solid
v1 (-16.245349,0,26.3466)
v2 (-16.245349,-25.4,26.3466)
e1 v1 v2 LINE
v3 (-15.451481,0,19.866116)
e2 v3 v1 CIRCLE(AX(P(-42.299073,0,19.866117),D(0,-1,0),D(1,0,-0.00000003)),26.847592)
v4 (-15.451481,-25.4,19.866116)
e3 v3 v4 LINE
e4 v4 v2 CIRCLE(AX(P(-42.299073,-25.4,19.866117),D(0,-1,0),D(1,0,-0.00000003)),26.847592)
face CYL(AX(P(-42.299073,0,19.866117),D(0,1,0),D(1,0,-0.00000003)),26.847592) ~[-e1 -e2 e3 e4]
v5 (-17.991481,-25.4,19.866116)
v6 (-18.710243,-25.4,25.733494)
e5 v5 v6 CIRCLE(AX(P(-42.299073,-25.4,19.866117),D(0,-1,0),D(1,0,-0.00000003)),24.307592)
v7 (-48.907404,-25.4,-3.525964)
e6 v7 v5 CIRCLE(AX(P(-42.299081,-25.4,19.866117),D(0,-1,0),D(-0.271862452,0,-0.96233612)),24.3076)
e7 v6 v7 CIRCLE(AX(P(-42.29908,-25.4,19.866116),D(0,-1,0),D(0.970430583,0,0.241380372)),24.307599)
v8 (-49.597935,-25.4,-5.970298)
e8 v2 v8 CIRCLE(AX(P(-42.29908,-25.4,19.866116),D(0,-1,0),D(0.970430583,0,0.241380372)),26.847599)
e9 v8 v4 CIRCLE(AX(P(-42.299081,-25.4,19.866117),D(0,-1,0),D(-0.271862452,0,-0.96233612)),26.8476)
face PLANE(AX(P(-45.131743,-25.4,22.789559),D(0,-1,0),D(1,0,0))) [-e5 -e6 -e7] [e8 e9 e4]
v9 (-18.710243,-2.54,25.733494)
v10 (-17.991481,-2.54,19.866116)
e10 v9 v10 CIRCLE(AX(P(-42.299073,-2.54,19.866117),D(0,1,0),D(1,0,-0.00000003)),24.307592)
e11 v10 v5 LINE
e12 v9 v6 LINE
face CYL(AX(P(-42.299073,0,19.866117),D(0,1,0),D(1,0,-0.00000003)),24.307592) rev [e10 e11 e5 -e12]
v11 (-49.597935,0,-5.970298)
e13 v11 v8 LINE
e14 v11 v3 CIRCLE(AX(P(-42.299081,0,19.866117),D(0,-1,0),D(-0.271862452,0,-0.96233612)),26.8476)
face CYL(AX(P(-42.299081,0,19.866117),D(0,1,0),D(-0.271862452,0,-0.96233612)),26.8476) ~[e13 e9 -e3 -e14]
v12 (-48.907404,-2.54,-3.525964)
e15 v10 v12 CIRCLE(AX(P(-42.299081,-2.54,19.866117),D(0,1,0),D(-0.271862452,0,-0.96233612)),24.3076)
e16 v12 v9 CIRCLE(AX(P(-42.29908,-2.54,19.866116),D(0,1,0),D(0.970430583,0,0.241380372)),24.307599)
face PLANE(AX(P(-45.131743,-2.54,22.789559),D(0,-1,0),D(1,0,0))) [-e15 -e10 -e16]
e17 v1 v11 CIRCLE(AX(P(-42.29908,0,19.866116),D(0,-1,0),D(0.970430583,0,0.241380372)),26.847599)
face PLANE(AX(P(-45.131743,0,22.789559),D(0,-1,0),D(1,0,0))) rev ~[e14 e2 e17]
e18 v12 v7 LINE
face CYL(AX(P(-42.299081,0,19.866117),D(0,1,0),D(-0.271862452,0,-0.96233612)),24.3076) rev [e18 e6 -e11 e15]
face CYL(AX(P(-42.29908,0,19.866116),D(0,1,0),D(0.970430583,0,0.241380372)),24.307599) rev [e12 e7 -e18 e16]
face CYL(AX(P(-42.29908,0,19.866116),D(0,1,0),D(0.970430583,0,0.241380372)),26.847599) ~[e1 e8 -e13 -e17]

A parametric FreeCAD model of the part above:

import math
import FreeCAD as App
import Part
import Sketcher
from FreeCAD import Vector
Q = App.Units.Quantity


def faces_at(feature, points):
    """Names of the faces that lie closest to the given points."""
    faces = feature.Shape.Faces
    near = lambda p: min(range(len(faces)), key=lambda i: faces[i].distToShape(Part.Vertex(*p))[0])
    return sorted({f"Face{near(p) + 1}" for p in points})

doc = App.newDocument("Part")
body = doc.addObject("PartDesign::Body", "Body")

# Sketch on XZ plane
sketch1 = body.newObject("Sketcher::SketchObject", "Sketch")
sketch1.AttachmentSupport = (doc.getObject("XZ_Plane"), [""])
sketch1.MapMode = "FlatFace"
sketch1.addGeometry([
    Part.ArcOfCircle(Part.Circle(Vector(-42, 20, 0), Vector(0, 0, 1), 27), math.radians(14), math.radians(254)),
    Part.ArcOfCircle(Part.Circle(Vector(-42, 20, 0), Vector(0, 0, 1), 27), math.radians(-106), math.radians(0)),
    Part.ArcOfCircle(Part.Circle(Vector(-42, 20, 0), Vector(0, 0, 1), 27), math.radians(0), math.radians(13.97)),
], False)
sketch1.addConstraint([
    Sketcher.Constraint("Tangent", 0, 2, 1, 1),
    Sketcher.Constraint("Tangent", 1, 2, 2, 1),
    Sketcher.Constraint("Tangent", 2, 2, 0, 1),
    Sketcher.Constraint("Horizontal", 2, 3, 1, 2),
    Sketcher.Constraint("Radius", 0, 26.847599),
    Sketcher.Constraint("DistanceY", 0, 2, -1, 1, 5.970298),
    Sketcher.Constraint("DistanceY", -1, 1, 2, 2, 26.3466),
    Sketcher.Constraint("DistanceX", 0, 3, -1, 1, 42.29908),
    Sketcher.Constraint("DistanceX", 2, 2, -1, 1, 16.245349),
])
pad1 = body.newObject("PartDesign::Pad", "Pad")
pad1.Profile = sketch1
pad1.Length = Q("1 in")
doc.recompute()

thickness = body.newObject("PartDesign::Thickness", "Thickness")
thickness.Base = (pad1, faces_at(pad1, [(-42.299, -25.4, 19.866)]))
thickness.Value = Q("0.1 in")
thickness.Reversed = True
thickness.Join = "Arc"

doc.recompute()
